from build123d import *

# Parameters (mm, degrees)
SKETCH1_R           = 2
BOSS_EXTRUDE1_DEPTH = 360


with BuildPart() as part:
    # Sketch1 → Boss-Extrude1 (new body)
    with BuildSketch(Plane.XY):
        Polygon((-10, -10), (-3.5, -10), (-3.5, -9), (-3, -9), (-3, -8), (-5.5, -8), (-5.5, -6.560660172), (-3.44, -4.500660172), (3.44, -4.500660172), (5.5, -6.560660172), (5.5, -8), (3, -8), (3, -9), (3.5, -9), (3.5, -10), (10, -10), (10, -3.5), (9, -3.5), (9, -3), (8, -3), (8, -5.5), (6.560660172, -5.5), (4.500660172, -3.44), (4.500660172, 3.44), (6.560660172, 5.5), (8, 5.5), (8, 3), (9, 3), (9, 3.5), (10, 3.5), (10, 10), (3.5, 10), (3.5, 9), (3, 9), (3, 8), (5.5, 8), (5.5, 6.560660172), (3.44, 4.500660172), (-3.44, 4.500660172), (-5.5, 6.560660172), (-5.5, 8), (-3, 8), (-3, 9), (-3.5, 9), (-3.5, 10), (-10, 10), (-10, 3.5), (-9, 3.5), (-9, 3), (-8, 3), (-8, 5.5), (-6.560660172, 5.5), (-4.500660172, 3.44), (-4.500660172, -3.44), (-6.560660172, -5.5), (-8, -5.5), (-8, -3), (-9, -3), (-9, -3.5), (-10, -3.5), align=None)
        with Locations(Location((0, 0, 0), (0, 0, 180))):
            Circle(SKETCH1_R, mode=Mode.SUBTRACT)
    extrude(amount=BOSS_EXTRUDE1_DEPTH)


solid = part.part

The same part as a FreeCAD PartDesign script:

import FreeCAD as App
import Part
import Sketcher
Q = App.Units.Quantity

doc = App.newDocument("Part")
body = doc.addObject("PartDesign::Body", "Body")

# Sketch on XY plane
sketch1 = body.newObject("Sketcher::SketchObject", "Sketch")
sketch1.AttachmentSupport = (doc.getObject("XY_Plane"), [""])
sketch1.MapMode = "FlatFace"
sketch1.addGeometry([
    Part.LineSegment(App.Vector(-10, -10, 0), App.Vector(-3.5, -10, 0)),  # 0
    Part.LineSegment(App.Vector(-3.5, -10, 0), App.Vector(-3.5, -9, 0)),  # 1
    Part.LineSegment(App.Vector(-3.5, -9, 0), App.Vector(-3, -9, 0)),  # 2
    Part.LineSegment(App.Vector(-3, -9, 0), App.Vector(-3, -8, 0)),  # 3
    Part.LineSegment(App.Vector(-3, -8, 0), App.Vector(-5.5, -8, 0)),  # 4
    Part.LineSegment(App.Vector(-5.5, -8, 0), App.Vector(-5.5, -6.6, 0)),  # 5
    Part.LineSegment(App.Vector(-5.5, -6.6, 0), App.Vector(-3.4, -4.5, 0)),  # 6
    Part.LineSegment(App.Vector(-3.4, -4.5, 0), App.Vector(3.4, -4.5, 0)),  # 7
    Part.LineSegment(App.Vector(3.4, -4.5, 0), App.Vector(5.5, -6.6, 0)),  # 8
    Part.LineSegment(App.Vector(5.5, -6.6, 0), App.Vector(5.5, -8, 0)),  # 9
    Part.LineSegment(App.Vector(5.5, -8, 0), App.Vector(3, -8, 0)),  # 10
    Part.LineSegment(App.Vector(3, -8, 0), App.Vector(3, -9, 0)),  # 11
    Part.LineSegment(App.Vector(3, -9, 0), App.Vector(3.5, -9, 0)),  # 12
    Part.LineSegment(App.Vector(3.5, -9, 0), App.Vector(3.5, -10, 0)),  # 13
    Part.LineSegment(App.Vector(3.5, -10, 0), App.Vector(10, -10, 0)),  # 14
    Part.LineSegment(App.Vector(10, -10, 0), App.Vector(10, -3.5, 0)),  # 15
    Part.LineSegment(App.Vector(10, -3.5, 0), App.Vector(9, -3.5, 0)),  # 16
    Part.LineSegment(App.Vector(9, -3.5, 0), App.Vector(9, -3, 0)),  # 17
    Part.LineSegment(App.Vector(9, -3, 0), App.Vector(8, -3, 0)),  # 18
    Part.LineSegment(App.Vector(8, -3, 0), App.Vector(8, -5.5, 0)),  # 19
    Part.LineSegment(App.Vector(8, -5.5, 0), App.Vector(6.6, -5.5, 0)),  # 20
    Part.LineSegment(App.Vector(6.6, -5.5, 0), App.Vector(4.5, -3.4, 0)),  # 21
    Part.LineSegment(App.Vector(4.5, -3.4, 0), App.Vector(4.5, 3.4, 0)),  # 22
    Part.LineSegment(App.Vector(4.5, 3.4, 0), App.Vector(6.6, 5.5, 0)),  # 23
    Part.LineSegment(App.Vector(6.6, 5.5, 0), App.Vector(8, 5.5, 0)),  # 24
    Part.LineSegment(App.Vector(8, 5.5, 0), App.Vector(8, 3, 0)),  # 25
    Part.LineSegment(App.Vector(8, 3, 0), App.Vector(9, 3, 0)),  # 26
    Part.LineSegment(App.Vector(9, 3, 0), App.Vector(9, 3.5, 0)),  # 27
    Part.LineSegment(App.Vector(9, 3.5, 0), App.Vector(10, 3.5, 0)),  # 28
    Part.LineSegment(App.Vector(10, 3.5, 0), App.Vector(10, 10, 0)),  # 29
    Part.LineSegment(App.Vector(10, 10, 0), App.Vector(3.5, 10, 0)),  # 30
    Part.LineSegment(App.Vector(3.5, 10, 0), App.Vector(3.5, 9, 0)),  # 31
    Part.LineSegment(App.Vector(3.5, 9, 0), App.Vector(3, 9, 0)),  # 32
    Part.LineSegment(App.Vector(3, 9, 0), App.Vector(3, 8, 0)),  # 33
    Part.LineSegment(App.Vector(3, 8, 0), App.Vector(5.5, 8, 0)),  # 34
    Part.LineSegment(App.Vector(5.5, 8, 0), App.Vector(5.5, 6.6, 0)),  # 35
    Part.LineSegment(App.Vector(5.5, 6.6, 0), App.Vector(3.4, 4.5, 0)),  # 36
    Part.LineSegment(App.Vector(3.4, 4.5, 0), App.Vector(-3.4, 4.5, 0)),  # 37
    Part.LineSegment(App.Vector(-3.4, 4.5, 0), App.Vector(-5.5, 6.6, 0)),  # 38
    Part.LineSegment(App.Vector(-5.5, 6.6, 0), App.Vector(-5.5, 8, 0)),  # 39
    Part.LineSegment(App.Vector(-5.5, 8, 0), App.Vector(-3, 8, 0)),  # 40
    Part.LineSegment(App.Vector(-3, 8, 0), App.Vector(-3, 9, 0)),  # 41
    Part.LineSegment(App.Vector(-3, 9, 0), App.Vector(-3.5, 9, 0)),  # 42
    Part.LineSegment(App.Vector(-3.5, 9, 0), App.Vector(-3.5, 10, 0)),  # 43
    Part.LineSegment(App.Vector(-3.5, 10, 0), App.Vector(-10, 10, 0)),  # 44
    Part.LineSegment(App.Vector(-10, 10, 0), App.Vector(-10, 3.5, 0)),  # 45
    Part.LineSegment(App.Vector(-10, 3.5, 0), App.Vector(-9, 3.5, 0)),  # 46
    Part.LineSegment(App.Vector(-9, 3.5, 0), App.Vector(-9, 3, 0)),  # 47
    Part.LineSegment(App.Vector(-9, 3, 0), App.Vector(-8, 3, 0)),  # 48
    Part.LineSegment(App.Vector(-8, 3, 0), App.Vector(-8, 5.5, 0)),  # 49
    Part.LineSegment(App.Vector(-8, 5.5, 0), App.Vector(-6.6, 5.5, 0)),  # 50
    Part.LineSegment(App.Vector(-6.6, 5.5, 0), App.Vector(-4.5, 3.4, 0)),  # 51
    Part.LineSegment(App.Vector(-4.5, 3.4, 0), App.Vector(-4.5, -3.4, 0)),  # 52
    Part.LineSegment(App.Vector(-4.5, -3.4, 0), App.Vector(-6.6, -5.5, 0)),  # 53
    Part.LineSegment(App.Vector(-6.6, -5.5, 0), App.Vector(-8, -5.5, 0)),  # 54
    Part.LineSegment(App.Vector(-8, -5.5, 0), App.Vector(-8, -3, 0)),  # 55
    Part.LineSegment(App.Vector(-8, -3, 0), App.Vector(-9, -3, 0)),  # 56
    Part.LineSegment(App.Vector(-9, -3, 0), App.Vector(-9, -3.5, 0)),  # 57
    Part.LineSegment(App.Vector(-9, -3.5, 0), App.Vector(-10, -3.5, 0)),  # 58
    Part.LineSegment(App.Vector(-10, -3.5, 0), App.Vector(-10, -10, 0)),  # 59
    Part.Circle(App.Vector(0, 0, 0), App.Vector(0, 0, 1), 2),  # 60
], False)
sketch1.addConstraint([
    Sketcher.Constraint("Coincident", 0, 2, 1, 1),
    Sketcher.Constraint("Coincident", 1, 2, 2, 1),
    Sketcher.Constraint("Coincident", 2, 2, 3, 1),
    Sketcher.Constraint("Coincident", 3, 2, 4, 1),
    Sketcher.Constraint("Coincident", 4, 2, 5, 1),
    Sketcher.Constraint("Coincident", 5, 2, 6, 1),
    Sketcher.Constraint("Coincident", 6, 2, 7, 1),
    Sketcher.Constraint("Coincident", 7, 2, 8, 1),
    Sketcher.Constraint("Coincident", 8, 2, 9, 1),
    Sketcher.Constraint("Coincident", 9, 2, 10, 1),
    Sketcher.Constraint("Coincident", 10, 2, 11, 1),
    Sketcher.Constraint("Coincident", 11, 2, 12, 1),
    Sketcher.Constraint("Coincident", 12, 2, 13, 1),
    Sketcher.Constraint("Coincident", 13, 2, 14, 1),
    Sketcher.Constraint("Coincident", 14, 2, 15, 1),
    Sketcher.Constraint("Coincident", 15, 2, 16, 1),
    Sketcher.Constraint("Coincident", 16, 2, 17, 1),
    Sketcher.Constraint("Coincident", 17, 2, 18, 1),
    Sketcher.Constraint("Coincident", 18, 2, 19, 1),
    Sketcher.Constraint("Coincident", 19, 2, 20, 1),
    Sketcher.Constraint("Coincident", 20, 2, 21, 1),
    Sketcher.Constraint("Coincident", 21, 2, 22, 1),
    Sketcher.Constraint("Coincident", 22, 2, 23, 1),
    Sketcher.Constraint("Coincident", 23, 2, 24, 1),
    Sketcher.Constraint("Coincident", 24, 2, 25, 1),
    Sketcher.Constraint("Coincident", 25, 2, 26, 1),
    Sketcher.Constraint("Coincident", 26, 2, 27, 1),
    Sketcher.Constraint("Coincident", 27, 2, 28, 1),
    Sketcher.Constraint("Coincident", 28, 2, 29, 1),
    Sketcher.Constraint("Coincident", 29, 2, 30, 1),
    Sketcher.Constraint("Coincident", 30, 2, 31, 1),
    Sketcher.Constraint("Coincident", 31, 2, 32, 1),
    Sketcher.Constraint("Coincident", 32, 2, 33, 1),
    Sketcher.Constraint("Coincident", 33, 2, 34, 1),
    Sketcher.Constraint("Coincident", 34, 2, 35, 1),
    Sketcher.Constraint("Coincident", 35, 2, 36, 1),
    Sketcher.Constraint("Coincident", 36, 2, 37, 1),
    Sketcher.Constraint("Coincident", 37, 2, 38, 1),
    Sketcher.Constraint("Coincident", 38, 2, 39, 1),
    Sketcher.Constraint("Coincident", 39, 2, 40, 1),
    Sketcher.Constraint("Coincident", 40, 2, 41, 1),
    Sketcher.Constraint("Coincident", 41, 2, 42, 1),
    Sketcher.Constraint("Coincident", 42, 2, 43, 1),
    Sketcher.Constraint("Coincident", 43, 2, 44, 1),
    Sketcher.Constraint("Coincident", 44, 2, 45, 1),
    Sketcher.Constraint("Coincident", 45, 2, 46, 1),
    Sketcher.Constraint("Coincident", 46, 2, 47, 1),
    Sketcher.Constraint("Coincident", 47, 2, 48, 1),
    Sketcher.Constraint("Coincident", 48, 2, 49, 1),
    Sketcher.Constraint("Coincident", 49, 2, 50, 1),
    Sketcher.Constraint("Coincident", 50, 2, 51, 1),
    Sketcher.Constraint("Coincident", 51, 2, 52, 1),
    Sketcher.Constraint("Coincident", 52, 2, 53, 1),
    Sketcher.Constraint("Coincident", 53, 2, 54, 1),
    Sketcher.Constraint("Coincident", 54, 2, 55, 1),
    Sketcher.Constraint("Coincident", 55, 2, 56, 1),
    Sketcher.Constraint("Coincident", 56, 2, 57, 1),
    Sketcher.Constraint("Coincident", 57, 2, 58, 1),
    Sketcher.Constraint("Coincident", 58, 2, 59, 1),
    Sketcher.Constraint("Coincident", 59, 2, 0, 1),
    Sketcher.Constraint("Horizontal", 0),
    Sketcher.Constraint("Vertical", 1),
    Sketcher.Constraint("Horizontal", 2),
    Sketcher.Constraint("Vertical", 3),
    Sketcher.Constraint("Horizontal", 4),
    Sketcher.Constraint("Vertical", 5),
    Sketcher.Constraint("Horizontal", 7),
    Sketcher.Constraint("Vertical", 9),
    Sketcher.Constraint("Horizontal", 10),
    Sketcher.Constraint("Vertical", 11),
    Sketcher.Constraint("Horizontal", 12),
    Sketcher.Constraint("Vertical", 13),
    Sketcher.Constraint("Horizontal", 14),
    Sketcher.Constraint("Vertical", 15),
    Sketcher.Constraint("Horizontal", 16),
    Sketcher.Constraint("Vertical", 17),
    Sketcher.Constraint("Horizontal", 18),
    Sketcher.Constraint("Vertical", 19),
    Sketcher.Constraint("Horizontal", 20),
    Sketcher.Constraint("Vertical", 22),
    Sketcher.Constraint("Horizontal", 24),
    Sketcher.Constraint("Vertical", 25),
    Sketcher.Constraint("Horizontal", 26),
    Sketcher.Constraint("Vertical", 27),
    Sketcher.Constraint("Horizontal", 28),
    Sketcher.Constraint("Vertical", 29),
    Sketcher.Constraint("Horizontal", 30),
    Sketcher.Constraint("Vertical", 31),
    Sketcher.Constraint("Horizontal", 32),
    Sketcher.Constraint("Vertical", 33),
    Sketcher.Constraint("Horizontal", 34),
    Sketcher.Constraint("Vertical", 35),
    Sketcher.Constraint("Horizontal", 37),
    Sketcher.Constraint("Vertical", 39),
    Sketcher.Constraint("Horizontal", 40),
    Sketcher.Constraint("Vertical", 41),
    Sketcher.Constraint("Horizontal", 42),
    Sketcher.Constraint("Vertical", 43),
    Sketcher.Constraint("Horizontal", 44),
    Sketcher.Constraint("Vertical", 45),
    Sketcher.Constraint("Horizontal", 46),
    Sketcher.Constraint("Vertical", 47),
    Sketcher.Constraint("Horizontal", 48),
    Sketcher.Constraint("Vertical", 49),
    Sketcher.Constraint("Horizontal", 50),
    Sketcher.Constraint("Vertical", 52),
    Sketcher.Constraint("Horizontal", 54),
    Sketcher.Constraint("Vertical", 55),
    Sketcher.Constraint("Horizontal", 56),
    Sketcher.Constraint("Vertical", 57),
    Sketcher.Constraint("Horizontal", 58),
    Sketcher.Constraint("Vertical", 59),
    Sketcher.Constraint("Coincident", 60, 3, -1, 1),
    Sketcher.Constraint("Symmetric", 0, 2, 30, 2, -1, 1),
    Sketcher.Constraint("Symmetric", 2, 2, 32, 2, -1, 1),
    Sketcher.Constraint("Symmetric", 4, 2, 34, 2, -1, 1),
    Sketcher.Constraint("Symmetric", 6, 2, 36, 2, -1, 1),
    Sketcher.Constraint("Symmetric", 8, 2, 38, 2, -1, 1),
    Sketcher.Constraint("Symmetric", 10, 2, 40, 2, -1, 1),
    Sketcher.Constraint("Symmetric", 12, 2, 42, 2, -1, 1),
    Sketcher.Constraint("Symmetric", 14, 2, 44, 2, -1, 1),
    Sketcher.Constraint("Symmetric", 16, 2, 46, 2, -1, 1),
    Sketcher.Constraint("Symmetric", 18, 2, 48, 2, -1, 1),
    Sketcher.Constraint("Symmetric", 20, 2, 50, 2, -1, 1),
    Sketcher.Constraint("Symmetric", 21, 2, 51, 2, -1, 1),
    Sketcher.Constraint("Symmetric", 23, 2, 53, 2, -1, 1),
    Sketcher.Constraint("Symmetric", 25, 2, 55, 2, -1, 1),
    Sketcher.Constraint("Symmetric", 27, 2, 57, 2, -1, 1),
    Sketcher.Constraint("Symmetric", 5, 2, 8, 2, -2),
    Sketcher.Constraint("Symmetric", 3, 2, 10, 2, -2),
    Sketcher.Constraint("Symmetric", 1, 2, 12, 2, -2),
    Sketcher.Constraint("Symmetric", 29, 2, 44, 2, -2),
    Sketcher.Constraint("Symmetric", 27, 2, 46, 2, -2),
    Sketcher.Constraint("Symmetric", 25, 2, 48, 2, -2),
    Sketcher.Constraint("Symmetric", 23, 2, 50, 2, -2),
    Sketcher.Constraint("Perpendicular", 6, 8),
    Sketcher.Constraint("Parallel", 8, 21),
    Sketcher.Constraint("Perpendicular", 21, 23),
    Sketcher.Constraint("Parallel", 23, 36),
    Sketcher.Constraint("Perpendicular", 36, 38),
    Sketcher.Constraint("Perpendicular", 51, 53),
    Sketcher.Constraint("Horizontal", 22, 2, 51, 2),
    Sketcher.Constraint("Vertical", 45, 2, 58, 2),
    Sketcher.Constraint("Equal", 16, 18),
    Sketcher.Constraint("Equal", 58, 1),
    Sketcher.Constraint("Equal", 1, 3),
    Sketcher.Constraint("Equal", 54, 5),
    Sketcher.Constraint("Equal", 44, 15),
    Sketcher.Constraint("Equal", 42, 17),
    Sketcher.Constraint("Equal", 40, 19),
    Sketcher.Constraint("Equal", 37, 22),
    Sketcher.Constraint("Equal", 8, 21),
    Sketcher.Constraint("Diameter", 60, Q("4 mm")),
    Sketcher.Constraint("DistanceX", 16, 2, 16, 1, Q("1 mm")),
    Sketcher.Constraint("DistanceX", 0, 1, 0, 2, Q("6.5 mm")),
    Sketcher.Constraint("DistanceX", 2, 1, 2, 2, Q("0.5 mm")),
    Sketcher.Constraint("DistanceX", 4, 2, 4, 1, Q("2.5 mm")),
    Sketcher.Constraint("DistanceY", 0, 2, -1, 1, Q("10 mm")),
    Sketcher.Constraint("DistanceX", 7, 1, 7, 2, Q("6.88 mm")),
    Sketcher.Constraint("DistanceX", 20, 2, 20, 1, Q("1.43934 mm")),
])
pad1 = body.newObject("PartDesign::Pad", "Pad")
pad1.Profile = sketch1
pad1.Length = 360

doc.recompute()
